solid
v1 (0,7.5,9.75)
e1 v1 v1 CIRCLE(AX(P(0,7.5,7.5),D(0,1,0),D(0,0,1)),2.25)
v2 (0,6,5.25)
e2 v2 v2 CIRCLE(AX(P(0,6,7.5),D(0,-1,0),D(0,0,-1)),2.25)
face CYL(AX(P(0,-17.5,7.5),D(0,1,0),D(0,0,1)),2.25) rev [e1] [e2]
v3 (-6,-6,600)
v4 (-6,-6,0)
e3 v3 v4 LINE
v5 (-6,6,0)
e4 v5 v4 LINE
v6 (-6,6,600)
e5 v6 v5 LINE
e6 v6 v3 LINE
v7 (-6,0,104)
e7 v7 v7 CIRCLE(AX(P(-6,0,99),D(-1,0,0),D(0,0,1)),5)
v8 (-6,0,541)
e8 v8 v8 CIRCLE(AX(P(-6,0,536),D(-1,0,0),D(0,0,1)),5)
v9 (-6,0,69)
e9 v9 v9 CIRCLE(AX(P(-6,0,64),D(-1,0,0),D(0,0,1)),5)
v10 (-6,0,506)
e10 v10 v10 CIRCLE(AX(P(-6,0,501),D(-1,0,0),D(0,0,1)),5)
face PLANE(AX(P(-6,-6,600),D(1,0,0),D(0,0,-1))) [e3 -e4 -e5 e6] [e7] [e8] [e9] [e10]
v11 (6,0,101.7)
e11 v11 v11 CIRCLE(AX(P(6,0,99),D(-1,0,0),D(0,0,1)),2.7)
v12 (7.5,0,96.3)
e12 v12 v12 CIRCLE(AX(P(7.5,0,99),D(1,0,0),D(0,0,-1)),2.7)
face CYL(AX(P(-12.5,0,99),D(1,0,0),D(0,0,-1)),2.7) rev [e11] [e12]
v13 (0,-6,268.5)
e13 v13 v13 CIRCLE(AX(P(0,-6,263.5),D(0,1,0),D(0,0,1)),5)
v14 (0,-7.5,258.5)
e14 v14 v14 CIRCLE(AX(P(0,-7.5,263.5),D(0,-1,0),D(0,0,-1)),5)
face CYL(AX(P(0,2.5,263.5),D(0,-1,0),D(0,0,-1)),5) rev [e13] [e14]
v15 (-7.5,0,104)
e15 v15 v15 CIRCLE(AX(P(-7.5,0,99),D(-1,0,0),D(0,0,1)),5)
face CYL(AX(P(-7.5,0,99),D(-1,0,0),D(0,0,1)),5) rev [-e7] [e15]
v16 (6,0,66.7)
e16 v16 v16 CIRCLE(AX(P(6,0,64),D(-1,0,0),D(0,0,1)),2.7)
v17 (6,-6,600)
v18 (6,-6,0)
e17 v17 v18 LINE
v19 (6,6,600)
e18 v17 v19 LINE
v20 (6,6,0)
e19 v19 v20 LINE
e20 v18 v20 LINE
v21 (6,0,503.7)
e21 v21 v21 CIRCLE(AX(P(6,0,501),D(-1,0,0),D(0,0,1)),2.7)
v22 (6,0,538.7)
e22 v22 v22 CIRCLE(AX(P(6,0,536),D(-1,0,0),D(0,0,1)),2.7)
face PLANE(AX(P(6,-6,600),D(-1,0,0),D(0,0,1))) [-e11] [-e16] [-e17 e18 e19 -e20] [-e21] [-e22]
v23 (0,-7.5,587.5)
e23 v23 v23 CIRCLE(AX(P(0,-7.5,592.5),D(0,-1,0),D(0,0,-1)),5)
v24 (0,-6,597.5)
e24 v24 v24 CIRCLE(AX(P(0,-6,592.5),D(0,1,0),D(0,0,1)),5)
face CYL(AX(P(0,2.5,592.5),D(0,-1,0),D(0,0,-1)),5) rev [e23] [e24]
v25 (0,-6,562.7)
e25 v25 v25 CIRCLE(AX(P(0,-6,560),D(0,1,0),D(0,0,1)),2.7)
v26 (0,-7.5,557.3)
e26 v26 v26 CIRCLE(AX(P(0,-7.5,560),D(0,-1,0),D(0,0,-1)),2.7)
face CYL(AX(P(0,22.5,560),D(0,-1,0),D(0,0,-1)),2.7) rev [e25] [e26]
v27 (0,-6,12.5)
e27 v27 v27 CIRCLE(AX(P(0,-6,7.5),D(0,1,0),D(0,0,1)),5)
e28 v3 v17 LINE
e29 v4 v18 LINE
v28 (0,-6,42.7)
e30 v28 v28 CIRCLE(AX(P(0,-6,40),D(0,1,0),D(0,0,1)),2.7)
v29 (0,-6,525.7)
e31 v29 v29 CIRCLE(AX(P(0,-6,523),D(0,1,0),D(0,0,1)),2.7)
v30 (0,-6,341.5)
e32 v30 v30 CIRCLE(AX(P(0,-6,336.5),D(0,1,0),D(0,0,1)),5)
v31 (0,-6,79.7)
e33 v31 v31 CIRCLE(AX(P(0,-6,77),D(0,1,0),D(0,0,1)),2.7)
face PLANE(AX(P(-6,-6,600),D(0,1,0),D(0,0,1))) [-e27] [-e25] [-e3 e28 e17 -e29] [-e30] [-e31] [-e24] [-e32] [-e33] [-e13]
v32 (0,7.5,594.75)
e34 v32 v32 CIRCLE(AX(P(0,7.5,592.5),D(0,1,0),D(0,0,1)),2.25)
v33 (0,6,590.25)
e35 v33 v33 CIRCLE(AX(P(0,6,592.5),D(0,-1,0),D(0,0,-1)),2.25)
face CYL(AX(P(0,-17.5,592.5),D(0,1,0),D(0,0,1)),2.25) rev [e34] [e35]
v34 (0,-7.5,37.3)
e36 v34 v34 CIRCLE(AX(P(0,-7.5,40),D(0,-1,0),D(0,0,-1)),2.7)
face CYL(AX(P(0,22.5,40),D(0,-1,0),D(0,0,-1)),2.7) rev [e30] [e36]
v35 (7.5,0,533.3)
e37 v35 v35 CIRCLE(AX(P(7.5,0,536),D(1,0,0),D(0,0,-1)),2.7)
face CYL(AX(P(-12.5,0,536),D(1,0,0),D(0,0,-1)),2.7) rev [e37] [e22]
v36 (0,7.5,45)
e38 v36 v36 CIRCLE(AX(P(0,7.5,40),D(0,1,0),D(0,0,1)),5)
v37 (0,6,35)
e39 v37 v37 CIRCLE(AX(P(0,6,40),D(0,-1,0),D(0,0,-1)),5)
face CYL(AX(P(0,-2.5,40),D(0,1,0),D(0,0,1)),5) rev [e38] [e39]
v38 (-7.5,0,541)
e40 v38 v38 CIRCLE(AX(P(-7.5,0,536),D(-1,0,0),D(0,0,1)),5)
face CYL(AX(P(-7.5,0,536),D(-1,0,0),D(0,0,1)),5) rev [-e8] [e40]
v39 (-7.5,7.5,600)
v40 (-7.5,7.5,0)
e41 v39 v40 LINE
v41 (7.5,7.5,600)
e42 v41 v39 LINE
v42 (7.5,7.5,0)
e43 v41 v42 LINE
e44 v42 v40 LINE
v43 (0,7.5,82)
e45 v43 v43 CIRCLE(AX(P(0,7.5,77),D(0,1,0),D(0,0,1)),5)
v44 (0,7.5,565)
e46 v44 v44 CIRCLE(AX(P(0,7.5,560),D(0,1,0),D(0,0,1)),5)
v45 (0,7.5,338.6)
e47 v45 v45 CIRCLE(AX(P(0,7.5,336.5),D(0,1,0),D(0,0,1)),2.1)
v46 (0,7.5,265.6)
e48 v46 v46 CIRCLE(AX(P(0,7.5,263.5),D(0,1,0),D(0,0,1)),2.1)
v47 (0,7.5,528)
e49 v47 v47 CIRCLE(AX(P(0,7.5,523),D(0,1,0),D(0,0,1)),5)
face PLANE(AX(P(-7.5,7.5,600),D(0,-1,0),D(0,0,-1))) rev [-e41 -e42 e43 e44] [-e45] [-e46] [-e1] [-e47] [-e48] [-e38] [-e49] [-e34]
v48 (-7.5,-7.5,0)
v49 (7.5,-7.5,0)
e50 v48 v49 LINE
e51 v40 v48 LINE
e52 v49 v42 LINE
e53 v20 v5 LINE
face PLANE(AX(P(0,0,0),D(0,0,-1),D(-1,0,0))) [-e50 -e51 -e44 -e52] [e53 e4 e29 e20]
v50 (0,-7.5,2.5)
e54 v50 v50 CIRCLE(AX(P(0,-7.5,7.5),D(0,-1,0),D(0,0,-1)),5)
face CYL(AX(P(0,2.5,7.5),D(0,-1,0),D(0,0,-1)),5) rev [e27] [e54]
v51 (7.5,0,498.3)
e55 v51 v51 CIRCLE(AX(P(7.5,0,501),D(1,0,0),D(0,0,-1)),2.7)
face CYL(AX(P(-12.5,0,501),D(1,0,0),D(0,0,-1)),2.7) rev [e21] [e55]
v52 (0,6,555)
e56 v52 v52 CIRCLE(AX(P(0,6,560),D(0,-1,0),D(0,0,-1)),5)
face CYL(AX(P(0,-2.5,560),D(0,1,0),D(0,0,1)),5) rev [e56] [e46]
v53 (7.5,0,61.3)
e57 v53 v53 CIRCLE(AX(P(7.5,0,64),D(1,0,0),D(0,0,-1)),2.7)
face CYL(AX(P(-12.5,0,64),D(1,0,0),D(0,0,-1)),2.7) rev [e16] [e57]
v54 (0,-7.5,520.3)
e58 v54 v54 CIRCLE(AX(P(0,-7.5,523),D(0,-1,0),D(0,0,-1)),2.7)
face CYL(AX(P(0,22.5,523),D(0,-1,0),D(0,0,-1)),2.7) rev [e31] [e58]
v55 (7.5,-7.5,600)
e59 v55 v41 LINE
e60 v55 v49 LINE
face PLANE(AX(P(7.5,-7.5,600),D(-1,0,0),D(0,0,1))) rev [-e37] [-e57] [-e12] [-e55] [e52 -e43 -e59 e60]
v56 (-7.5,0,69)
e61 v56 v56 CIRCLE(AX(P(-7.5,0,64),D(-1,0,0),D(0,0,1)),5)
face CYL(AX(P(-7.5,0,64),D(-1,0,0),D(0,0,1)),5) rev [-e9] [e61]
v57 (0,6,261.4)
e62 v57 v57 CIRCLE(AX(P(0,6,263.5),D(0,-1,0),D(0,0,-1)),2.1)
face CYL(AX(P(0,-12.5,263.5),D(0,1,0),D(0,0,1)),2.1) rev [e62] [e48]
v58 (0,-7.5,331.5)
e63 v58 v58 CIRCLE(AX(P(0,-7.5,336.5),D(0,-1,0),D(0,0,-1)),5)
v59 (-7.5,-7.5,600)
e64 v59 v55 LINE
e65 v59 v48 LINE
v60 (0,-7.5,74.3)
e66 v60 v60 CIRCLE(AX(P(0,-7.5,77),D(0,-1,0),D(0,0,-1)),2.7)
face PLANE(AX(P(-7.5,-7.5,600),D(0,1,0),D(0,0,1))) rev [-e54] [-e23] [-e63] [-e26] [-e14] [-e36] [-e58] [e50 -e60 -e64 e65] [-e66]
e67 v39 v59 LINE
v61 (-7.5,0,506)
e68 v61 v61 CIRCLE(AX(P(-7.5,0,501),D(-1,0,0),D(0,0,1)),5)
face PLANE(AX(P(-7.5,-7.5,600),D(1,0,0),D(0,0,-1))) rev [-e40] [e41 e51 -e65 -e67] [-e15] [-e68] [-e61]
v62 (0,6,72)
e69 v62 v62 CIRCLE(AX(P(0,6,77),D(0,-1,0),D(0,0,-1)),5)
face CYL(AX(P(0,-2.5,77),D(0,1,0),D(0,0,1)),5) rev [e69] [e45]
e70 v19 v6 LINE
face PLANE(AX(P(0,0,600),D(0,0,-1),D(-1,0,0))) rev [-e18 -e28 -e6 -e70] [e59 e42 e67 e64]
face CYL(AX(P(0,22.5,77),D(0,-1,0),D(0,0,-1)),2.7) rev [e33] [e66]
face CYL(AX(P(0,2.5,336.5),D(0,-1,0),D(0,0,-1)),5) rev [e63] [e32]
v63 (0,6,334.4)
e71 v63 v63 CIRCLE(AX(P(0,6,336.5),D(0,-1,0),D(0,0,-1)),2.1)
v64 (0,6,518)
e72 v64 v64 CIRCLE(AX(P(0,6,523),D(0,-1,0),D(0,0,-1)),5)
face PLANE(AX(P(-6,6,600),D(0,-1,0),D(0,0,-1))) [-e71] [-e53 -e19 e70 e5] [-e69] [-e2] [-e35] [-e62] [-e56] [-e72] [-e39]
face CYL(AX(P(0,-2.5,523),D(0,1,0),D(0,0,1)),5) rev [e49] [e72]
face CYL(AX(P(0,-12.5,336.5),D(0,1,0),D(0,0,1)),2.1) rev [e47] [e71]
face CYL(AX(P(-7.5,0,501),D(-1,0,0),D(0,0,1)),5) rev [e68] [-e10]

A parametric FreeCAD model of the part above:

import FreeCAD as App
import Part
import Sketcher


def add_polygon(sketch, points):
    """Adds a closed chain of lines whose ends are joined by coincident constraints."""
    first, n = sketch.GeometryCount, len(points)
    for a, b in zip(points, points[1:] + points[:1]):
        sketch.addGeometry(Part.LineSegment(App.Vector(*a, 0), App.Vector(*b, 0)), False)
    for i in range(n):
        sketch.addConstraint(Sketcher.Constraint("Coincident", first + i, 2, first + (i + 1) % n, 1))

doc = App.newDocument("Part")
params = doc.addObject("Spreadsheet::Sheet", "Params")
for row, (alias, value) in enumerate([
    ("sketch1_width", "15 mm"),
    ("sketch1_width2", "12 mm"),
    ("pad1_length", "600 mm"),
    ("sketch2_diameter", "4.5 mm"),
    ("pocket1_length", "25 mm"),
    ("sketch3_diameter", "5.4 mm"),
    ("pocket2_length", "20 mm"),
    ("sketch4_diameter", "4.2 mm"),
    ("pocket3_length", "20 mm"),
    ("sketch5_diameter", "10 mm"),
    ("pocket4_length", "10 mm"),
    ("sketch6_diameter", "5.4 mm"),
    ("pocket5_length", "30 mm"),
    ("sketch7_diameter", "10 mm"),
    ("pocket6_length", "10 mm"),
    ("sketch8_diameter", "10 mm"),
    ("hole_diameter", "10 mm"),
    ("hole_depth", "1.5 mm"),
], start=1):
    params.set(f"A{row}", alias)
    params.set(f"B{row}", "=" + value)
    params.setAlias(f"B{row}", alias)

body = doc.addObject("PartDesign::Body", "Body")

sketch1 = doc.addObject("Sketcher::SketchObject", "Sketch")
body.addObject(sketch1)
sketch1.AttachmentSupport = (doc.XY_Plane, [""])
sketch1.MapMode = "FlatFace"
add_polygon(sketch1, [(-7.5, 7.5), (-7.5, -7.5), (7.5, -7.5), (7.5, 7.5)])
add_polygon(sketch1, [(6, -6), (-6, -6), (-6, 6), (6, 6)])
sketch1.addConstraint(Sketcher.Constraint("Vertical", 0))
sketch1.addConstraint(Sketcher.Constraint("Horizontal", 1))
sketch1.addConstraint(Sketcher.Constraint("Vertical", 2))
sketch1.addConstraint(Sketcher.Constraint("Horizontal", 3))
sketch1.addConstraint(Sketcher.Constraint("Horizontal", 4))
sketch1.addConstraint(Sketcher.Constraint("Vertical", 5))
sketch1.addConstraint(Sketcher.Constraint("Horizontal", 6))
sketch1.addConstraint(Sketcher.Constraint("Vertical", 7))
sketch1.addConstraint(Sketcher.Constraint("Symmetric", 0, 2, 2, 2, -1, 1))
sketch1.addConstraint(Sketcher.Constraint("Symmetric", 4, 2, 6, 2, -1, 1))
sketch1.addConstraint(Sketcher.Constraint("Equal", 3, 0))
sketch1.addConstraint(Sketcher.Constraint("Equal", 6, 5))
sketch1.addConstraint(Sketcher.Constraint("DistanceX", 1, 1, 1, 2, 15.0))
sketch1.addConstraint(Sketcher.Constraint("DistanceX", 4, 2, 4, 1, 12.0))
sketch1.setExpression("Constraints[20]", "Params.sketch1_width")
sketch1.setExpression("Constraints[21]", "Params.sketch1_width2")
pad1 = doc.addObject("PartDesign::Pad", "Pad")
body.addObject(pad1)
pad1.Profile = sketch1
pad1.setExpression("Length", "Params.pad1_length")

sketch2 = doc.addObject("Sketcher::SketchObject", "Sketch001")
body.addObject(sketch2)
sketch2.AttachmentSupport = (doc.XZ_Plane, [""])
sketch2.MapMode = "FlatFace"
sketch2.AttachmentOffset = App.Placement(App.Vector(0, 0, -7.5), App.Rotation())
sketch2.addGeometry(Part.Circle(App.Vector(0, 7.5, 0), App.Vector(0, 0, 1), 2.25), False)
sketch2.addGeometry(Part.Circle(App.Vector(0, 592.5, 0), App.Vector(0, 0, 1), 2.25), False)
sketch2.addConstraint(Sketcher.Constraint("Equal", 0, 1))
sketch2.addConstraint(Sketcher.Constraint("PointOnObject", 0, 3, -2))
sketch2.addConstraint(Sketcher.Constraint("PointOnObject", 1, 3, -2))
sketch2.addConstraint(Sketcher.Constraint("Diameter", 0, 4.5))
sketch2.addConstraint(Sketcher.Constraint("DistanceY", 0, 3, 1, 3, 585.0))
sketch2.addConstraint(Sketcher.Constraint("DistanceY", -1, 1, 0, 3, 7.5))
sketch2.setExpression("Constraints[3]", "Params.sketch2_diameter")
pocket1 = doc.addObject("PartDesign::Pocket", "Pocket")
body.addObject(pocket1)
pocket1.Profile = sketch2
pocket1.setExpression("Length", "Params.pocket1_length")
pocket1.Reversed = True

sketch3 = doc.addObject("Sketcher::SketchObject", "Sketch002")
body.addObject(sketch3)
sketch3.AttachmentSupport = (doc.YZ_Plane, [""])
sketch3.MapMode = "FlatFace"
sketch3.AttachmentOffset = App.Placement(App.Vector(0, 0, 7.5), App.Rotation())
sketch3.addGeometry(Part.Circle(App.Vector(0, 536, 0), App.Vector(0, 0, 1), 2.7), False)
sketch3.addGeometry(Part.Circle(App.Vector(0, 501, 0), App.Vector(0, 0, 1), 2.7), False)
sketch3.addGeometry(Part.Circle(App.Vector(0, 99, 0), App.Vector(0, 0, 1), 2.7), False)
sketch3.addGeometry(Part.Circle(App.Vector(0, 64, 0), App.Vector(0, 0, 1), 2.7), False)
sketch3.addConstraint(Sketcher.Constraint("Equal", 0, 1))
sketch3.addConstraint(Sketcher.Constraint("Equal", 1, 2))
sketch3.addConstraint(Sketcher.Constraint("Equal", 2, 3))
sketch3.addConstraint(Sketcher.Constraint("PointOnObject", 0, 3, -2))
sketch3.addConstraint(Sketcher.Constraint("PointOnObject", 1, 3, -2))
sketch3.addConstraint(Sketcher.Constraint("PointOnObject", 2, 3, -2))
sketch3.addConstraint(Sketcher.Constraint("PointOnObject", 3, 3, -2))
sketch3.addConstraint(Sketcher.Constraint("Diameter", 0, 5.4))
sketch3.addConstraint(Sketcher.Constraint("DistanceY", -1, 1, 0, 3, 536.0))
sketch3.addConstraint(Sketcher.Constraint("DistanceY", -1, 1, 1, 3, 501.0))
sketch3.addConstraint(Sketcher.Constraint("DistanceY", -1, 1, 2, 3, 99.0))
sketch3.addConstraint(Sketcher.Constraint("DistanceY", -1, 1, 3, 3, 64.0))
sketch3.setExpression("Constraints[7]", "Params.sketch3_diameter")
pocket2 = doc.addObject("PartDesign::Pocket", "Pocket001")
body.addObject(pocket2)
pocket2.Profile = sketch3
pocket2.setExpression("Length", "Params.pocket2_length")

sketch4 = doc.addObject("Sketcher::SketchObject", "Sketch003")
body.addObject(sketch4)
sketch4.AttachmentSupport = (doc.XZ_Plane, [""])
sketch4.MapMode = "FlatFace"
sketch4.AttachmentOffset = App.Placement(App.Vector(0, 0, -7.5), App.Rotation())
sketch4.addGeometry(Part.Circle(App.Vector(0, 336.5, 0), App.Vector(0, 0, 1), 2.1), False)
sketch4.addGeometry(Part.Circle(App.Vector(0, 263.5, 0), App.Vector(0, 0, 1), 2.1), False)
sketch4.addConstraint(Sketcher.Constraint("Equal", 0, 1))
sketch4.addConstraint(Sketcher.Constraint("PointOnObject", 0, 3, -2))
sketch4.addConstraint(Sketcher.Constraint("PointOnObject", 1, 3, -2))
sketch4.addConstraint(Sketcher.Constraint("Diameter", 0, 4.2))
sketch4.addConstraint(Sketcher.Constraint("DistanceY", 1, 3, 0, 3, 73.0))
sketch4.addConstraint(Sketcher.Constraint("DistanceY", -1, 1, 0, 3, 336.5))
sketch4.setExpression("Constraints[3]", "Params.sketch4_diameter")
pocket3 = doc.addObject("PartDesign::Pocket", "Pocket002")
body.addObject(pocket3)
pocket3.Profile = sketch4
pocket3.setExpression("Length", "Params.pocket3_length")
pocket3.Reversed = True

sketch5 = doc.addObject("Sketcher::SketchObject", "Sketch004")
body.addObject(sketch5)
sketch5.AttachmentSupport = (doc.XZ_Plane, [""])
sketch5.MapMode = "FlatFace"
sketch5.AttachmentOffset = App.Placement(App.Vector(0, 0, 7.5), App.Rotation())
sketch5.addGeometry(Part.Circle(App.Vector(0, 592.5, 0), App.Vector(0, 0, 1), 5), False)
sketch5.addGeometry(Part.Circle(App.Vector(0, 336.5, 0), App.Vector(0, 0, 1), 5), False)
sketch5.addGeometry(Part.Circle(App.Vector(0, 263.5, 0), App.Vector(0, 0, 1), 5), False)
sketch5.addGeometry(Part.Circle(App.Vector(0, 7.5, 0), App.Vector(0, 0, 1), 5), False)
sketch5.addConstraint(Sketcher.Constraint("Equal", 0, 1))
sketch5.addConstraint(Sketcher.Constraint("Equal", 1, 2))
sketch5.addConstraint(Sketcher.Constraint("Equal", 2, 3))
sketch5.addConstraint(Sketcher.Constraint("PointOnObject", 0, 3, -2))
sketch5.addConstraint(Sketcher.Constraint("PointOnObject", 1, 3, -2))
sketch5.addConstraint(Sketcher.Constraint("PointOnObject", 2, 3, -2))
sketch5.addConstraint(Sketcher.Constraint("PointOnObject", 3, 3, -2))
sketch5.addConstraint(Sketcher.Constraint("Diameter", 0, 10.0))
sketch5.addConstraint(Sketcher.Constraint("DistanceY", 1, 3, 0, 3, 256.0))
sketch5.addConstraint(Sketcher.Constraint("DistanceY", 2, 3, 1, 3, 73.0))
sketch5.addConstraint(Sketcher.Constraint("DistanceY", 3, 3, 2, 3, 256.0))
sketch5.addConstraint(Sketcher.Constraint("DistanceY", -1, 1, 0, 3, 592.5))
sketch5.setExpression("Constraints[7]", "Params.sketch5_diameter")
pocket4 = doc.addObject("PartDesign::Pocket", "Pocket003")
body.addObject(pocket4)
pocket4.Profile = sketch5
pocket4.setExpression("Length", "Params.pocket4_length")

sketch6 = doc.addObject("Sketcher::SketchObject", "Sketch005")
body.addObject(sketch6)
sketch6.AttachmentSupport = (doc.XZ_Plane, [""])
sketch6.MapMode = "FlatFace"
sketch6.AttachmentOffset = App.Placement(App.Vector(0, 0, 7.5), App.Rotation())
sketch6.addGeometry(Part.Circle(App.Vector(0, 40, 0), App.Vector(0, 0, 1), 2.7), False)
sketch6.addGeometry(Part.Circle(App.Vector(0, 77, 0), App.Vector(0, 0, 1), 2.7), False)
sketch6.addGeometry(Part.Circle(App.Vector(0, 523, 0), App.Vector(0, 0, 1), 2.7), False)
sketch6.addGeometry(Part.Circle(App.Vector(0, 560, 0), App.Vector(0, 0, 1), 2.7), False)
sketch6.addConstraint(Sketcher.Constraint("Equal", 0, 1))
sketch6.addConstraint(Sketcher.Constraint("Equal", 1, 2))
sketch6.addConstraint(Sketcher.Constraint("Equal", 2, 3))
sketch6.addConstraint(Sketcher.Constraint("PointOnObject", 0, 3, -2))
sketch6.addConstraint(Sketcher.Constraint("PointOnObject", 1, 3, -2))
sketch6.addConstraint(Sketcher.Constraint("PointOnObject", 2, 3, -2))
sketch6.addConstraint(Sketcher.Constraint("PointOnObject", 3, 3, -2))
sketch6.addConstraint(Sketcher.Constraint("Diameter", 0, 5.4))
sketch6.addConstraint(Sketcher.Constraint("DistanceY", -1, 1, 0, 3, 40.0))
sketch6.addConstraint(Sketcher.Constraint("DistanceY", -1, 1, 1, 3, 77.0))
sketch6.addConstraint(Sketcher.Constraint("DistanceY", -1, 1, 2, 3, 523.0))
sketch6.addConstraint(Sketcher.Constraint("DistanceY", -1, 1, 3, 3, 560.0))
sketch6.setExpression("Constraints[7]", "Params.sketch6_diameter")
pocket5 = doc.addObject("PartDesign::Pocket", "Pocket004")
body.addObject(pocket5)
pocket5.Profile = sketch6
pocket5.setExpression("Length", "Params.pocket5_length")

sketch7 = doc.addObject("Sketcher::SketchObject", "Sketch006")
body.addObject(sketch7)
sketch7.AttachmentSupport = (doc.XZ_Plane, [""])
sketch7.MapMode = "FlatFace"
sketch7.AttachmentOffset = App.Placement(App.Vector(0, 0, -7.5), App.Rotation())
sketch7.addGeometry(Part.Circle(App.Vector(0, 40, 0), App.Vector(0, 0, 1), 5), False)
sketch7.addGeometry(Part.Circle(App.Vector(0, 77, 0), App.Vector(0, 0, 1), 5), False)
sketch7.addGeometry(Part.Circle(App.Vector(0, 560, 0), App.Vector(0, 0, 1), 5), False)
sketch7.addGeometry(Part.Circle(App.Vector(0, 523, 0), App.Vector(0, 0, 1), 5), False)
sketch7.addConstraint(Sketcher.Constraint("Equal", 0, 1))
sketch7.addConstraint(Sketcher.Constraint("Equal", 1, 2))
sketch7.addConstraint(Sketcher.Constraint("Equal", 2, 3))
sketch7.addConstraint(Sketcher.Constraint("PointOnObject", 0, 3, -2))
sketch7.addConstraint(Sketcher.Constraint("PointOnObject", 1, 3, -2))
sketch7.addConstraint(Sketcher.Constraint("PointOnObject", 2, 3, -2))
sketch7.addConstraint(Sketcher.Constraint("PointOnObject", 3, 3, -2))
sketch7.addConstraint(Sketcher.Constraint("Diameter", 0, 10.0))
sketch7.addConstraint(Sketcher.Constraint("DistanceY", -1, 1, 0, 3, 40.0))
sketch7.addConstraint(Sketcher.Constraint("DistanceY", -1, 1, 1, 3, 77.0))
sketch7.addConstraint(Sketcher.Constraint("DistanceY", -1, 1, 2, 3, 560.0))
sketch7.addConstraint(Sketcher.Constraint("DistanceY", -1, 1, 3, 3, 523.0))
sketch7.setExpression("Constraints[7]", "Params.sketch7_diameter")
pocket6 = doc.addObject("PartDesign::Pocket", "Pocket005")
body.addObject(pocket6)
pocket6.Profile = sketch7
pocket6.setExpression("Length", "Params.pocket6_length")
pocket6.Reversed = True

sketch8 = doc.addObject("Sketcher::SketchObject", "Sketch007")
body.addObject(sketch8)
sketch8.AttachmentSupport = (doc.YZ_Plane, [""])
sketch8.MapMode = "FlatFace"
sketch8.AttachmentOffset = App.Placement(App.Vector(0, 0, -7.5), App.Rotation())
sketch8.addGeometry(Part.Circle(App.Vector(0, 64, 0), App.Vector(0, 0, 1), 5), False)
sketch8.addGeometry(Part.Circle(App.Vector(0, 99, 0), App.Vector(0, 0, 1), 5), False)
sketch8.addGeometry(Part.Circle(App.Vector(0, 501, 0), App.Vector(0, 0, 1), 5), False)
sketch8.addGeometry(Part.Circle(App.Vector(0, 536, 0), App.Vector(0, 0, 1), 5), False)
sketch8.addConstraint(Sketcher.Constraint("Equal", 0, 1))
sketch8.addConstraint(Sketcher.Constraint("Equal", 1, 2))
sketch8.addConstraint(Sketcher.Constraint("Equal", 2, 3))
sketch8.addConstraint(Sketcher.Constraint("PointOnObject", 0, 3, -2))
sketch8.addConstraint(Sketcher.Constraint("PointOnObject", 1, 3, -2))
sketch8.addConstraint(Sketcher.Constraint("PointOnObject", 2, 3, -2))
sketch8.addConstraint(Sketcher.Constraint("PointOnObject", 3, 3, -2))
sketch8.addConstraint(Sketcher.Constraint("Diameter", 0, 10.0))
sketch8.addConstraint(Sketcher.Constraint("DistanceY", -1, 1, 0, 3, 64.0))
sketch8.addConstraint(Sketcher.Constraint("DistanceY", -1, 1, 1, 3, 99.0))
sketch8.addConstraint(Sketcher.Constraint("DistanceY", -1, 1, 2, 3, 501.0))
sketch8.addConstraint(Sketcher.Constraint("DistanceY", -1, 1, 3, 3, 536.0))
sketch8.setExpression("Constraints[7]", "Params.sketch8_diameter")
doc.recompute()
hole = doc.addObject("PartDesign::Hole", "Hole")
body.addObject(hole)
hole.Profile = sketch8
hole.ThreadType = "None"
hole.setExpression("Diameter", "Params.hole_diameter")
hole.DepthType = "Dimension"
hole.setExpression("Depth", "Params.hole_depth")
hole.DrillPoint = "Flat"
hole.Reversed = True

doc.recompute()
